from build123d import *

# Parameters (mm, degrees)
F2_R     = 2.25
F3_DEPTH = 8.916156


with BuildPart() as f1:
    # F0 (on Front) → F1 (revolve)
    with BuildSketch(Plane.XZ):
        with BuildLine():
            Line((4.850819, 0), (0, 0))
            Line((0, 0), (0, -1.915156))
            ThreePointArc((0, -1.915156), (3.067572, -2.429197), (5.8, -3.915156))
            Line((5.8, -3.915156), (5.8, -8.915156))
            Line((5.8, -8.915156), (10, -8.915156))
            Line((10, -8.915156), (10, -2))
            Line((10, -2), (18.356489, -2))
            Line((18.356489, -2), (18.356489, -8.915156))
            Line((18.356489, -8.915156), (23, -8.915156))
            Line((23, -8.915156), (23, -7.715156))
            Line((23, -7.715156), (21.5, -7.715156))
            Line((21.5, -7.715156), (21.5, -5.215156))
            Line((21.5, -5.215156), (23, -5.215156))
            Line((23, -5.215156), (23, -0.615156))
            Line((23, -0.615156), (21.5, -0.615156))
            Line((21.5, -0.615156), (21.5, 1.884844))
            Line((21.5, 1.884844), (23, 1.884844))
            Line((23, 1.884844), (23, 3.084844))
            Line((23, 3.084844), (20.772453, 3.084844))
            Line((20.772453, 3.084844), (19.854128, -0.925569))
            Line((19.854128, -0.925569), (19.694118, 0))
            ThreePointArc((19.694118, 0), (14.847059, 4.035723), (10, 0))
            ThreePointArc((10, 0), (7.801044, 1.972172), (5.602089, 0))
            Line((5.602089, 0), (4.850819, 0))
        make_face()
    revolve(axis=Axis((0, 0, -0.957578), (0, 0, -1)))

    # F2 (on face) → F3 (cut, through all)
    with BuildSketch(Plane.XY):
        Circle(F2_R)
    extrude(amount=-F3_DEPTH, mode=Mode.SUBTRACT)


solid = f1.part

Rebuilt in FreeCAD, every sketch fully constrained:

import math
import FreeCAD as App
import Part
import Sketcher

V = App.Vector

doc = App.newDocument("Part")
params = doc.addObject("Spreadsheet::Sheet", "Params")
for row, (alias, value) in enumerate([
    ("sketch1_height", "5 mm"),
    ("sketch1_width", "4.2 mm"),
    ("sketch1_width2", "1.5 mm"),
    ("sketch1_height2", "1.2 mm"),
    ("sketch1_height3", "2.5 mm"),
    ("revolution_angle", "360 deg"),
    ("sketch2_diameter", "4.5 mm"),
], start=1):
    params.set(f"A{row}", alias)
    params.set(f"B{row}", "=" + value)
    params.setAlias(f"B{row}", alias)

body = doc.addObject("PartDesign::Body", "Body")

# Sketch on XZ plane
sketch1 = doc.addObject("Sketcher::SketchObject", "Sketch")
body.addObject(sketch1)
sketch1.AttachmentSupport = (doc.XZ_Plane, [""])
sketch1.MapMode = "FlatFace"
sketch1.addGeometry(Part.LineSegment(V(0, 0, 0), V(0, -1.9, 0)), False)
sketch1.addGeometry(Part.ArcOfCircle(Part.Circle(V(0, -11.3, 0), V(0, 0, 1), 9.4), math.radians(52), math.radians(90)), False)
sketch1.addGeometry(Part.LineSegment(V(5.8, -3.9, 0), V(5.8, -8.9, 0)), False)
sketch1.addGeometry(Part.LineSegment(V(5.8, -8.9, 0), V(10, -8.9, 0)), False)
sketch1.addGeometry(Part.LineSegment(V(10, -8.9, 0), V(10, -2, 0)), False)
sketch1.addGeometry(Part.LineSegment(V(10, -2, 0), V(18.4, -2, 0)), False)
sketch1.addGeometry(Part.LineSegment(V(18.4, -2, 0), V(18.4, -8.9, 0)), False)
sketch1.addGeometry(Part.LineSegment(V(18.4, -8.9, 0), V(23, -8.9, 0)), False)
sketch1.addGeometry(Part.LineSegment(V(23, -8.9, 0), V(23, -7.7, 0)), False)
sketch1.addGeometry(Part.LineSegment(V(23, -7.7, 0), V(21.5, -7.7, 0)), False)
sketch1.addGeometry(Part.LineSegment(V(21.5, -7.7, 0), V(21.5, -5.2, 0)), False)
sketch1.addGeometry(Part.LineSegment(V(21.5, -5.2, 0), V(23, -5.2, 0)), False)
sketch1.addGeometry(Part.LineSegment(V(23, -5.2, 0), V(23, -0.6, 0)), False)
sketch1.addGeometry(Part.LineSegment(V(23, -0.6, 0), V(21.5, -0.6, 0)), False)
sketch1.addGeometry(Part.LineSegment(V(21.5, -0.6, 0), V(21.5, 1.9, 0)), False)
sketch1.addGeometry(Part.LineSegment(V(21.5, 1.9, 0), V(23, 1.9, 0)), False)
sketch1.addGeometry(Part.LineSegment(V(23, 1.9, 0), V(23, 3.1, 0)), False)
sketch1.addGeometry(Part.LineSegment(V(23, 3.1, 0), V(20.8, 3.1, 0)), False)
sketch1.addGeometry(Part.LineSegment(V(20.8, 3.1, 0), V(19.9, -0.9, 0)), False)
sketch1.addGeometry(Part.LineSegment(V(19.9, -0.9, 0), V(19.7, 0, 0)), False)
sketch1.addGeometry(Part.ArcOfCircle(Part.Circle(V(14.8, -0.9, 0), V(0, 0, 1), 4.9), math.radians(10), math.radians(170)), False)
sketch1.addGeometry(Part.ArcOfCircle(Part.Circle(V(7.8, -0.2, 0), V(0, 0, 1), 2.2), math.radians(6), math.radians(174)), False)
sketch1.addGeometry(Part.LineSegment(V(5.6, 0, 0), V(0, 0, 0)), False)
sketch1.addConstraint(Sketcher.Constraint("Coincident", 0, 2, 1, 2))
sketch1.addConstraint(Sketcher.Constraint("Coincident", 1, 1, 2, 1))
sketch1.addConstraint(Sketcher.Constraint("Coincident", 2, 2, 3, 1))
sketch1.addConstraint(Sketcher.Constraint("Coincident", 3, 2, 4, 1))
sketch1.addConstraint(Sketcher.Constraint("Coincident", 4, 2, 5, 1))
sketch1.addConstraint(Sketcher.Constraint("Coincident", 5, 2, 6, 1))
sketch1.addConstraint(Sketcher.Constraint("Coincident", 6, 2, 7, 1))
sketch1.addConstraint(Sketcher.Constraint("Coincident", 7, 2, 8, 1))
sketch1.addConstraint(Sketcher.Constraint("Coincident", 8, 2, 9, 1))
sketch1.addConstraint(Sketcher.Constraint("Coincident", 9, 2, 10, 1))
sketch1.addConstraint(Sketcher.Constraint("Coincident", 10, 2, 11, 1))
sketch1.addConstraint(Sketcher.Constraint("Coincident", 11, 2, 12, 1))
sketch1.addConstraint(Sketcher.Constraint("Coincident", 12, 2, 13, 1))
sketch1.addConstraint(Sketcher.Constraint("Coincident", 13, 2, 14, 1))
sketch1.addConstraint(Sketcher.Constraint("Coincident", 14, 2, 15, 1))
sketch1.addConstraint(Sketcher.Constraint("Coincident", 15, 2, 16, 1))
sketch1.addConstraint(Sketcher.Constraint("Coincident", 16, 2, 17, 1))
sketch1.addConstraint(Sketcher.Constraint("Coincident", 17, 2, 18, 1))
sketch1.addConstraint(Sketcher.Constraint("Coincident", 18, 2, 19, 1))
sketch1.addConstraint(Sketcher.Constraint("Coincident", 19, 2, 20, 1))
sketch1.addConstraint(Sketcher.Constraint("Coincident", 20, 2, 21, 1))
sketch1.addConstraint(Sketcher.Constraint("Coincident", 21, 2, 22, 1))
sketch1.addConstraint(Sketcher.Constraint("Coincident", 22, 2, 0, 1))
sketch1.addConstraint(Sketcher.Constraint("Vertical", 0))
sketch1.addConstraint(Sketcher.Constraint("Vertical", 2))
sketch1.addConstraint(Sketcher.Constraint("Horizontal", 3))
sketch1.addConstraint(Sketcher.Constraint("Vertical", 4))
sketch1.addConstraint(Sketcher.Constraint("Horizontal", 5))
sketch1.addConstraint(Sketcher.Constraint("Vertical", 6))
sketch1.addConstraint(Sketcher.Constraint("Horizontal", 7))
sketch1.addConstraint(Sketcher.Constraint("Vertical", 8))
sketch1.addConstraint(Sketcher.Constraint("Horizontal", 9))
sketch1.addConstraint(Sketcher.Constraint("Vertical", 10))
sketch1.addConstraint(Sketcher.Constraint("Horizontal", 11))
sketch1.addConstraint(Sketcher.Constraint("Vertical", 12))
sketch1.addConstraint(Sketcher.Constraint("Horizontal", 13))
sketch1.addConstraint(Sketcher.Constraint("Vertical", 14))
sketch1.addConstraint(Sketcher.Constraint("Horizontal", 15))
sketch1.addConstraint(Sketcher.Constraint("Vertical", 16))
sketch1.addConstraint(Sketcher.Constraint("Horizontal", 17))
sketch1.addConstraint(Sketcher.Constraint("Horizontal", 22))
sketch1.addConstraint(Sketcher.Constraint("Coincident", 22, 2, -1, 1))
sketch1.addConstraint(Sketcher.Constraint("PointOnObject", 19, 2, -1))
sketch1.addConstraint(Sketcher.Constraint("PointOnObject", 20, 2, -1))
sketch1.addConstraint(Sketcher.Constraint("Horizontal", 3, 2, 6, 2))
sketch1.addConstraint(Sketcher.Constraint("Vertical", 8, 2, 11, 2))
sketch1.addConstraint(Sketcher.Constraint("Vertical", 10, 2, 13, 2))
sketch1.addConstraint(Sketcher.Constraint("Vertical", 12, 2, 15, 2))
sketch1.addConstraint(Sketcher.Constraint("Vertical", 4, 2, 20, 2))
sketch1.addConstraint(Sketcher.Constraint("Equal", 10, 14))
sketch1.addConstraint(Sketcher.Constraint("Equal", 8, 16))
sketch1.addConstraint(Sketcher.Constraint("DistanceY", 2, 2, 2, 1, 5.0))
sketch1.addConstraint(Sketcher.Constraint("DistanceX", 3, 1, 3, 2, 4.2))
sketch1.addConstraint(Sketcher.Constraint("DistanceX", 9, 2, 9, 1, 1.5))
sketch1.addConstraint(Sketcher.Constraint("DistanceY", 8, 1, 8, 2, 1.2))
sketch1.addConstraint(Sketcher.Constraint("DistanceY", 10, 1, 10, 2, 2.5))
sketch1.addConstraint(Sketcher.Constraint("DistanceY", 12, 1, 12, 2, 4.6))
sketch1.addConstraint(Sketcher.Constraint("DistanceX", -1, 1, 3, 2, 10.0))
sketch1.addConstraint(Sketcher.Constraint("DistanceY", 4, 2, -1, 1, 2.0))
sketch1.addConstraint(Sketcher.Constraint("DistanceX", -1, 1, 7, 2, 23.0))
sketch1.addConstraint(Sketcher.Constraint("DistanceY", 1, 1, 0, 2, 2.0))
sketch1.addConstraint(Sketcher.Constraint("Radius", 1, 9.410014))
sketch1.addConstraint(Sketcher.Constraint("Radius", 20, 4.928614))
sketch1.addConstraint(Sketcher.Constraint("Radius", 21, 2.211995))
sketch1.addConstraint(Sketcher.Constraint("Distance", 19, 0.939298))
sketch1.addConstraint(Sketcher.Constraint("DistanceX", 5, 1, 5, 2, 8.356489))
sketch1.addConstraint(Sketcher.Constraint("DistanceX", 22, 2, 22, 1, 5.602089))
sketch1.addConstraint(Sketcher.Constraint("Distance", 18, 4.114211))
sketch1.addConstraint(Sketcher.Constraint("DistanceX", 17, 2, 17, 1, 2.227547))
sketch1.addConstraint(Sketcher.Constraint("DistanceY", 0, 2, 0, 1, 1.915156))
sketch1.addConstraint(Sketcher.Constraint("DistanceX", -1, 1, 20, 3, 14.847059))
sketch1.setExpression("Constraints[51]", "Params.sketch1_height")
sketch1.setExpression("Constraints[52]", "Params.sketch1_width")
sketch1.setExpression("Constraints[53]", "Params.sketch1_width2")
sketch1.setExpression("Constraints[54]", "Params.sketch1_height2")
sketch1.setExpression("Constraints[55]", "Params.sketch1_height3")
revolution = doc.addObject("PartDesign::Revolution", "Revolution")
body.addObject(revolution)
revolution.Profile = sketch1
revolution.ReferenceAxis = (sketch1, ["V_Axis"])
revolution.setExpression("Angle", "Params.revolution_angle")

# Sketch on XY plane
sketch2 = doc.addObject("Sketcher::SketchObject", "Sketch001")
body.addObject(sketch2)
sketch2.AttachmentSupport = (doc.XY_Plane, [""])
sketch2.MapMode = "FlatFace"
sketch2.addGeometry(Part.Circle(V(0, 0, 0), V(0, 0, 1), 2.2), False)
sketch2.addConstraint(Sketcher.Constraint("Coincident", 0, 3, -1, 1))
sketch2.addConstraint(Sketcher.Constraint("Diameter", 0, 4.5))
sketch2.setExpression("Constraints[1]", "Params.sketch2_diameter")
pocket1 = doc.addObject("PartDesign::Pocket", "Pocket")
body.addObject(pocket1)
pocket1.Profile = sketch2
pocket1.Type = "ThroughAll"

doc.recompute()
